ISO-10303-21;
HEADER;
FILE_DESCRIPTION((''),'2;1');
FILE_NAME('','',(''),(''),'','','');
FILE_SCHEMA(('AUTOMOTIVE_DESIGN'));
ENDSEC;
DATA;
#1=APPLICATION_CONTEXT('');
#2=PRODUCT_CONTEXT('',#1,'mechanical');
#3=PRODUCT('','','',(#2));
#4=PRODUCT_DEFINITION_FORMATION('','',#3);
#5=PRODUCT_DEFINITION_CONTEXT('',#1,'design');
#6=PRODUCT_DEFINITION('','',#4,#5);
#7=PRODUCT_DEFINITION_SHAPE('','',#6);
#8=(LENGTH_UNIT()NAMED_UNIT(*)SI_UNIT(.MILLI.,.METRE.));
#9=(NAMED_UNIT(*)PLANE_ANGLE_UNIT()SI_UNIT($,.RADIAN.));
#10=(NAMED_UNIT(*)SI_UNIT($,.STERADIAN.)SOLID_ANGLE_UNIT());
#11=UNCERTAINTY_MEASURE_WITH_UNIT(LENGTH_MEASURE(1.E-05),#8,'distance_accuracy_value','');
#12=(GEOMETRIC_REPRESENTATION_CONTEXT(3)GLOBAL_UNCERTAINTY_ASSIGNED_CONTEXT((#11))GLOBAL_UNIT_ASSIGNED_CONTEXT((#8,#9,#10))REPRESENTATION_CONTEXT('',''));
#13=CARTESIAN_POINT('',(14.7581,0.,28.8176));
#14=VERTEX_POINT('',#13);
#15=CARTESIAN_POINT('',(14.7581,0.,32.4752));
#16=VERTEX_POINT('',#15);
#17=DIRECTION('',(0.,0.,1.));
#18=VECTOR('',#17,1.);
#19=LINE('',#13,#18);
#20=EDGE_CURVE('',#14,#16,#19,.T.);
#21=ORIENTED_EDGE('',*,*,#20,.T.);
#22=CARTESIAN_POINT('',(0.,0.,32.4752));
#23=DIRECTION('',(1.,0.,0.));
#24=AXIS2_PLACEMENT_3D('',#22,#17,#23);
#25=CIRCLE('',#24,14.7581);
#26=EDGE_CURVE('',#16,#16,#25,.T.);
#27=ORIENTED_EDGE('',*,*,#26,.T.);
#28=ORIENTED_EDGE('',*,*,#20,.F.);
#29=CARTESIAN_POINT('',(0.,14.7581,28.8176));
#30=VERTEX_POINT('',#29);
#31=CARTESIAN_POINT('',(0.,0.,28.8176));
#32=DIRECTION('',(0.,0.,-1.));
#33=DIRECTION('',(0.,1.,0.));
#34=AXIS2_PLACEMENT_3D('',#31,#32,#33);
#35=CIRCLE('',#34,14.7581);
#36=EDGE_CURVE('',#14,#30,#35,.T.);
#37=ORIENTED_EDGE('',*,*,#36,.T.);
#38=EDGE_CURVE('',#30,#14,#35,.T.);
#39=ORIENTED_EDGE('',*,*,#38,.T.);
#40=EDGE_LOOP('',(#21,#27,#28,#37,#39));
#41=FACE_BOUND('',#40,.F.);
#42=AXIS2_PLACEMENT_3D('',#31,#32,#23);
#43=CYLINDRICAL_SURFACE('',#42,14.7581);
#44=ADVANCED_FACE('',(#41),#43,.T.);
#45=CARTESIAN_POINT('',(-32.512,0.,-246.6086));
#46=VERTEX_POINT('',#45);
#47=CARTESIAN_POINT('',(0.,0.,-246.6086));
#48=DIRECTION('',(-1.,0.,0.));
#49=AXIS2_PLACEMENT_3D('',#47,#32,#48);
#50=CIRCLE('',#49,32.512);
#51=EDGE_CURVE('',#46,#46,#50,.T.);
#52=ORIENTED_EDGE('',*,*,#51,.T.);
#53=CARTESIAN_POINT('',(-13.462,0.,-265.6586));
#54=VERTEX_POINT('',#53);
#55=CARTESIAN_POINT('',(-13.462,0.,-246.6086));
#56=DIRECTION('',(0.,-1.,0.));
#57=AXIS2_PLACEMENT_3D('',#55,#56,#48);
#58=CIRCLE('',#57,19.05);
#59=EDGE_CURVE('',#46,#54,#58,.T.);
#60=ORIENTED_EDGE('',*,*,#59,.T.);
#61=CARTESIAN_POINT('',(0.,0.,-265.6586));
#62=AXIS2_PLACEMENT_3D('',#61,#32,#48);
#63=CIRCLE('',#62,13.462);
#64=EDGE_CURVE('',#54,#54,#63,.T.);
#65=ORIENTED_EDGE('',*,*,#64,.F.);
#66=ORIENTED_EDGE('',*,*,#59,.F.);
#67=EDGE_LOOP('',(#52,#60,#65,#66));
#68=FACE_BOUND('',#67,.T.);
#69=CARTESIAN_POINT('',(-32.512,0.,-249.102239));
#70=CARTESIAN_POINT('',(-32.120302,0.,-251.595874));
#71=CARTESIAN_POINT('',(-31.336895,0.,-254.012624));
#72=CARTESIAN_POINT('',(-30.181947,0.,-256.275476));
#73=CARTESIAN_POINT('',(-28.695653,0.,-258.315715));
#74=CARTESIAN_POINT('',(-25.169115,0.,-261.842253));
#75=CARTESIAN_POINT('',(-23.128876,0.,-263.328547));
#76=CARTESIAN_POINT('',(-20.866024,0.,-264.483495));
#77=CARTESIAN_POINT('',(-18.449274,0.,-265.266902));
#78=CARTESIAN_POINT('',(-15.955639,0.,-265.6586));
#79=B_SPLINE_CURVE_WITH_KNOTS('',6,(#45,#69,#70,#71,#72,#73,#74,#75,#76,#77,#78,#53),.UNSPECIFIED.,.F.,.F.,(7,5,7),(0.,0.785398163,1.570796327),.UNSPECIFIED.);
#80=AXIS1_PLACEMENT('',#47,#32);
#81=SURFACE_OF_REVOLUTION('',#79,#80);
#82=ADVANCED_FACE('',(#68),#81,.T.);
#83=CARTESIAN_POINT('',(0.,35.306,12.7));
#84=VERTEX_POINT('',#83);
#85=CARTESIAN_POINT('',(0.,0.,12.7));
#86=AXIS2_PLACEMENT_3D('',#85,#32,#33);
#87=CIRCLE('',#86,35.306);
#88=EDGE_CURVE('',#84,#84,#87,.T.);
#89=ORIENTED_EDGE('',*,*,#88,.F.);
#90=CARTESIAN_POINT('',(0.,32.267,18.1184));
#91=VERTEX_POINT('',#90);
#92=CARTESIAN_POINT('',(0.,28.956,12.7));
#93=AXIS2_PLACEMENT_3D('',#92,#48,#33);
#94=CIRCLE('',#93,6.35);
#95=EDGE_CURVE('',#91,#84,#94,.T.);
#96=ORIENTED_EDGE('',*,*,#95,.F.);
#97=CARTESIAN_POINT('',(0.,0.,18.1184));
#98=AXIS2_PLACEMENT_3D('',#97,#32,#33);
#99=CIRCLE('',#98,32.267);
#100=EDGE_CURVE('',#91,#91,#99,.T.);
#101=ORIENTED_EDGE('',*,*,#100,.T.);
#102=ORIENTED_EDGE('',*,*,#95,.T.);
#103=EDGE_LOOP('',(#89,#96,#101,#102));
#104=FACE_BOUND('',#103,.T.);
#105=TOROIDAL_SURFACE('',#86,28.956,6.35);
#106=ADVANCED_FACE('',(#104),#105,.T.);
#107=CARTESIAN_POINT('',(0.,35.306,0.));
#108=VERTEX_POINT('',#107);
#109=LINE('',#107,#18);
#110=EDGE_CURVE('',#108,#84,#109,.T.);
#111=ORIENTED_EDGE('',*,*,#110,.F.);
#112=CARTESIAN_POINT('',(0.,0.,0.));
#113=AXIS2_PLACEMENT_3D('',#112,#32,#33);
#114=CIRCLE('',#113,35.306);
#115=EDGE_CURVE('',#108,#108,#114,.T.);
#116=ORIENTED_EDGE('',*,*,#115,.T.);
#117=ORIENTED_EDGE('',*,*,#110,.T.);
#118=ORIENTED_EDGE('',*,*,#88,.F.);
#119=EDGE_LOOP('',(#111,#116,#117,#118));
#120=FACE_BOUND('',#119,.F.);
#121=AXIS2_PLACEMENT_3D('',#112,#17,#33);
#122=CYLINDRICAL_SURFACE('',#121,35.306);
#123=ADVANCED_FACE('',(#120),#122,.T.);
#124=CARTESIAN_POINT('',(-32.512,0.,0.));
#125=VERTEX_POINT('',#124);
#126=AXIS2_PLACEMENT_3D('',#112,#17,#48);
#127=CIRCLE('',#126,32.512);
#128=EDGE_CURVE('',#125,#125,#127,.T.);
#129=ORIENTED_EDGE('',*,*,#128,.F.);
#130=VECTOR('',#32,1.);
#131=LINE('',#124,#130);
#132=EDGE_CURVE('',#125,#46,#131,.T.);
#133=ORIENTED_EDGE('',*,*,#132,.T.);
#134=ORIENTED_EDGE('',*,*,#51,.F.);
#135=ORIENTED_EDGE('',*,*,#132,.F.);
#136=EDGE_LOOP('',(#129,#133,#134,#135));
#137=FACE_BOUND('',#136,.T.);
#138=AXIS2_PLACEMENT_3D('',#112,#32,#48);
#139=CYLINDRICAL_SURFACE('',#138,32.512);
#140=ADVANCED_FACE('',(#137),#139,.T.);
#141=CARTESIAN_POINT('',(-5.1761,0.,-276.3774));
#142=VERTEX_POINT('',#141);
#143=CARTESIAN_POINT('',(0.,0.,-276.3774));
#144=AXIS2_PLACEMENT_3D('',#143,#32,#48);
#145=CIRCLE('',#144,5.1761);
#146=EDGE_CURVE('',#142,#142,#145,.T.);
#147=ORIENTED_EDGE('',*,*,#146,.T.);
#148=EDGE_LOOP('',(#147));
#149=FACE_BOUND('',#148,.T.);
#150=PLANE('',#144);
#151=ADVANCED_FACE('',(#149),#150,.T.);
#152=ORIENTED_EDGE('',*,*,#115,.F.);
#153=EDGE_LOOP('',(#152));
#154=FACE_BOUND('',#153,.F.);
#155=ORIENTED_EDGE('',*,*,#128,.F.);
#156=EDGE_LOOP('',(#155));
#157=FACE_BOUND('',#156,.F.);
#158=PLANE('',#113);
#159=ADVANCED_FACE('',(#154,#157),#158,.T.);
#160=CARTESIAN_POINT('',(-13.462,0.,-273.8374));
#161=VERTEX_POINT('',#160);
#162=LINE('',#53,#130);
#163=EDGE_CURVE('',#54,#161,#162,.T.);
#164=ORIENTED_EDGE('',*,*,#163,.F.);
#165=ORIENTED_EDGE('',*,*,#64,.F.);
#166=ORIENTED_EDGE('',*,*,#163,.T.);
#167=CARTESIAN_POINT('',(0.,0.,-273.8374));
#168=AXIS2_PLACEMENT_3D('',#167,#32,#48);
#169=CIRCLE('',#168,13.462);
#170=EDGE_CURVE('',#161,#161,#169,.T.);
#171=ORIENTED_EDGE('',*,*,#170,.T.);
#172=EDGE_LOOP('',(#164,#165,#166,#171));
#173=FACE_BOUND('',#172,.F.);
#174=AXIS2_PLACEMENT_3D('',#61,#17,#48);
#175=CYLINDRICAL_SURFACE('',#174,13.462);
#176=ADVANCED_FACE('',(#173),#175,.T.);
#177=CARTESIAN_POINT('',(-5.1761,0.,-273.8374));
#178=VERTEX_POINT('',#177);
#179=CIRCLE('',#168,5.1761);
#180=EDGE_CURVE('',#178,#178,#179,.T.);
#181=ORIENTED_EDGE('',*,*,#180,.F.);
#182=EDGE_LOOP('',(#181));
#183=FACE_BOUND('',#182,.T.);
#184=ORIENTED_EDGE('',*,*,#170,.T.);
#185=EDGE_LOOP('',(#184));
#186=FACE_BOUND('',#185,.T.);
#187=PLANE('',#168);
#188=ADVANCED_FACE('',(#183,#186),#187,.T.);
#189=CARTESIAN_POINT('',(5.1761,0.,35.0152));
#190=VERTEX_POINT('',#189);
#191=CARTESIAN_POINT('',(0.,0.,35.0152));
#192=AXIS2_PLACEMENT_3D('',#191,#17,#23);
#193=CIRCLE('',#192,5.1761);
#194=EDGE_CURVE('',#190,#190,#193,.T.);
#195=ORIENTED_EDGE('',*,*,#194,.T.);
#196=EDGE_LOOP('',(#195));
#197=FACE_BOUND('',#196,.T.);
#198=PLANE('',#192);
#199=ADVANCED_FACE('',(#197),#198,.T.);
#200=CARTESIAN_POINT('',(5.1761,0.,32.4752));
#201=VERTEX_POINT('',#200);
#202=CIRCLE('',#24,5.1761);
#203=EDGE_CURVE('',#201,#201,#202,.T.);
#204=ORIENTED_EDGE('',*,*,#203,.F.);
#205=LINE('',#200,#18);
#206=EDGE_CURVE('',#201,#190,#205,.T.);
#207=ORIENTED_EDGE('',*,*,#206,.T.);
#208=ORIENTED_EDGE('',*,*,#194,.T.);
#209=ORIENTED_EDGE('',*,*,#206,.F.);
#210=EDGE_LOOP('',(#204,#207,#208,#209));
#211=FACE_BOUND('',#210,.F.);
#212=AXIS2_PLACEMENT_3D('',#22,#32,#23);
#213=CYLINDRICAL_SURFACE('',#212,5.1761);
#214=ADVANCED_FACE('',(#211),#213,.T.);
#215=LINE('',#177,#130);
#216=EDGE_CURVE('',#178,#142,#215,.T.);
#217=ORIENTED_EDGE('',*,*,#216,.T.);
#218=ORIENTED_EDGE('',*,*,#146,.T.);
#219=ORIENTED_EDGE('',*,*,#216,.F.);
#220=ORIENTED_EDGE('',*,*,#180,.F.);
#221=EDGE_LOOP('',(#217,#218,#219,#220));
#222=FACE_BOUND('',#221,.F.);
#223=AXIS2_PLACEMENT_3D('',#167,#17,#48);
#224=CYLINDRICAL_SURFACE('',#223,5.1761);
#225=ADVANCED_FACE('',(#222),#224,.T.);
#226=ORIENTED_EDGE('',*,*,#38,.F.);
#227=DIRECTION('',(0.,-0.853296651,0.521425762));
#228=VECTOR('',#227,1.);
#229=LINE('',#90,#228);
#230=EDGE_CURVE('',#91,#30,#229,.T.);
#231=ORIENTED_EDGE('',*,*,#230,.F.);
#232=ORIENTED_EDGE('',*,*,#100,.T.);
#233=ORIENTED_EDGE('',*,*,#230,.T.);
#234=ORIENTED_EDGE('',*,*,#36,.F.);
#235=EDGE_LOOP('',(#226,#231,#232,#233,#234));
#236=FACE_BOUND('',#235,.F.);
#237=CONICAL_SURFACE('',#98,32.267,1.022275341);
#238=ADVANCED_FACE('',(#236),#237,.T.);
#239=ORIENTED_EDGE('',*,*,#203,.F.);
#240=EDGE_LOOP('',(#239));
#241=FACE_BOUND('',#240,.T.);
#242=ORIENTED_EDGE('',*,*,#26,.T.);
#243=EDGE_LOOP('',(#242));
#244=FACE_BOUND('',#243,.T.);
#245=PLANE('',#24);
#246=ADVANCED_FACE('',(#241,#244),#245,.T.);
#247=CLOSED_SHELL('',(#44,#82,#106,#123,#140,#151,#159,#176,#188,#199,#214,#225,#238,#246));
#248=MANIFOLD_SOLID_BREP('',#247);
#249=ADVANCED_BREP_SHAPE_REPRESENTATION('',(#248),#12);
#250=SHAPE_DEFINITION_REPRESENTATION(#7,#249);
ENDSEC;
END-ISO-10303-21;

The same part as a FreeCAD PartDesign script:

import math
import FreeCAD as App
import Part
import Sketcher
Q = App.Units.Quantity


def edges_at(feature, points):
    """Names of the edges that pass closest to the given points."""
    edges = feature.Shape.Edges
    near = lambda p: min(range(len(edges)), key=lambda i: edges[i].distToShape(Part.Vertex(*p))[0])
    return sorted({f"Edge{near(p) + 1}" for p in points})

doc = App.newDocument("Part")
body = doc.addObject("PartDesign::Body", "Body")

sketch1 = body.newObject("Sketcher::SketchObject", "Sketch")
sketch1.AttachmentSupport = (doc.getObject("XZ_Plane"), [""])
sketch1.MapMode = "FlatFace"
sketch1.addGeometry([
    Part.LineSegment(App.Vector(-33, 0, 0), App.Vector(0, 0, 0)),
    Part.LineSegment(App.Vector(0, 0, 0), App.Vector(0, -266, 0)),
    Part.LineSegment(App.Vector(0, -266, 0), App.Vector(-33, -266, 0)),
    Part.LineSegment(App.Vector(-33, -266, 0), App.Vector(-33, 0, 0)),
], False)
sketch1.addConstraint([
    Sketcher.Constraint("Coincident", 0, 2, 1, 1),
    Sketcher.Constraint("Coincident", 1, 2, 2, 1),
    Sketcher.Constraint("Coincident", 2, 2, 3, 1),
    Sketcher.Constraint("Coincident", 3, 2, 0, 1),
    Sketcher.Constraint("Horizontal", 0),
    Sketcher.Constraint("Vertical", 1),
    Sketcher.Constraint("Horizontal", 2),
    Sketcher.Constraint("Vertical", 3),
    Sketcher.Constraint("Coincident", 0, 2, -1, 1),
    Sketcher.Constraint("DistanceX", 0, 1, 0, 2, Q("1.28 in")),
    Sketcher.Constraint("DistanceY", 1, 2, 1, 1, Q("10.459 in")),
])
revolution = body.newObject("PartDesign::Revolution", "Revolution")
revolution.Profile = sketch1
revolution.ReferenceAxis = (sketch1, ["V_Axis"])
revolution.Angle = 360
doc.recompute()

fillet = body.newObject("PartDesign::Fillet", "Fillet")
fillet.Base = (revolution, edges_at(revolution, [(32.512, 0, -265.659)]))
fillet.Radius = Q("0.75 in")

sketch2 = body.newObject("Sketcher::SketchObject", "Sketch001")
sketch2.AttachmentSupport = (doc.getObject("YZ_Plane"), [""])
sketch2.MapMode = "FlatFace"
sketch2.addGeometry([
    Part.LineSegment(App.Vector(0, 19, 0), App.Vector(0, 0, 0)),
    Part.LineSegment(App.Vector(0, 0, 0), App.Vector(35, 0, 0)),
    Part.LineSegment(App.Vector(35, 0, 0), App.Vector(35, 19, 0)),
    Part.LineSegment(App.Vector(35, 19, 0), App.Vector(0, 19, 0)),
], False)
sketch2.addConstraint([
    Sketcher.Constraint("Coincident", 0, 2, 1, 1),
    Sketcher.Constraint("Coincident", 1, 2, 2, 1),
    Sketcher.Constraint("Coincident", 2, 2, 3, 1),
    Sketcher.Constraint("Coincident", 3, 2, 0, 1),
    Sketcher.Constraint("Vertical", 0),
    Sketcher.Constraint("Horizontal", 1),
    Sketcher.Constraint("Vertical", 2),
    Sketcher.Constraint("Horizontal", 3),
    Sketcher.Constraint("Coincident", 0, 2, -1, 1),
    Sketcher.Constraint("DistanceX", 1, 1, 1, 2, Q("1.39 in")),
    Sketcher.Constraint("DistanceY", 0, 2, 0, 1, Q("0.75 in")),
])
revolution2 = body.newObject("PartDesign::Revolution", "Revolution001")
revolution2.Profile = sketch2
revolution2.ReferenceAxis = (sketch2, ["V_Axis"])
revolution2.Angle = 360
doc.recompute()

fillet2 = body.newObject("PartDesign::Fillet", "Fillet001")
fillet2.Base = (revolution2, edges_at(revolution2, [(0, -35.306, 19.05)]))
fillet2.Radius = Q("0.25 in")

sketch3 = body.newObject("Sketcher::SketchObject", "Sketch002")
sketch3.AttachmentSupport = (doc.getObject("YZ_Plane"), [""])
sketch3.MapMode = "FlatFace"
sketch3.addGeometry([
    Part.ArcOfCircle(Part.Circle(App.Vector(29, 12.7, 0), App.Vector(0, 0, 1), 6.3), math.radians(59), math.radians(90)),
    Part.LineSegment(App.Vector(32.3, 18.1, 0), App.Vector(14.8, 28.8, 0)),
    Part.LineSegment(App.Vector(14.8, 28.8, 0), App.Vector(0, 28.8, 0)),
    Part.LineSegment(App.Vector(0, 28.8, 0), App.Vector(0, 19.1, 0)),
    Part.LineSegment(App.Vector(0, 19.1, 0), App.Vector(29, 19.1, 0)),
], False)
sketch3.addConstraint([
    Sketcher.Constraint("Tangent", 0, 1, 1, 1),
    Sketcher.Constraint("Coincident", 1, 2, 2, 1),
    Sketcher.Constraint("Coincident", 2, 2, 3, 1),
    Sketcher.Constraint("Coincident", 3, 2, 4, 1),
    Sketcher.Constraint("Tangent", 4, 2, 0, 2),
    Sketcher.Constraint("Horizontal", 2),
    Sketcher.Constraint("Vertical", 3),
    Sketcher.Constraint("Horizontal", 4),
    Sketcher.Constraint("PointOnObject", 2, 2, -2),
    Sketcher.Constraint("Radius", 0, Q("0.25 in")),
    Sketcher.Constraint("DistanceX", 4, 1, 4, 2, Q("1.14 in")),
    Sketcher.Constraint("DistanceY", -1, 1, 0, 3, Q("0.5 in")),
    Sketcher.Constraint("DistanceX", 2, 2, 2, 1, 14.758),
    Sketcher.Constraint("DistanceY", 3, 2, 3, 1, 9.7676),
])
revolution3 = body.newObject("PartDesign::Revolution", "Revolution002")
revolution3.Profile = sketch3
revolution3.ReferenceAxis = (sketch3, ["V_Axis"])
revolution3.Angle = 360

sketch4 = body.newObject("Sketcher::SketchObject", "Sketch003")
sketch4.AttachmentSupport = (doc.getObject("XY_Plane"), [""])
sketch4.MapMode = "FlatFace"
sketch4.AttachmentOffset = App.Placement(App.Vector(0, 0, 28.8176), App.Rotation())
sketch4.addGeometry(Part.Circle(App.Vector(0, 0, 0), App.Vector(0, 0, 1), 15), False)
sketch4.addConstraint([
    Sketcher.Constraint("Coincident", 0, 3, -1, 1),
    Sketcher.Constraint("Diameter", 0, 29.5162),
])
pad1 = body.newObject("PartDesign::Pad", "Pad")
pad1.Profile = sketch4
pad1.Length = Q("0.144 in")

sketch5 = body.newObject("Sketcher::SketchObject", "Sketch004")
sketch5.AttachmentSupport = (doc.getObject("XY_Plane"), [""])
sketch5.MapMode = "FlatFace"
sketch5.AttachmentOffset = App.Placement(App.Vector(0, 0, -10.459 * 25.4), App.Rotation())
sketch5.addGeometry(Part.Circle(App.Vector(0, 0, 0), App.Vector(0, 0, 1), 13), False)
sketch5.addConstraint([
    Sketcher.Constraint("Coincident", 0, 3, -1, 1),
    Sketcher.Constraint("Diameter", 0, Q("1.06 in")),
])
pad2 = body.newObject("PartDesign::Pad", "Pad001")
pad2.Profile = sketch5
pad2.Length = Q("0.322 in")
pad2.Reversed = True

sketch6 = body.newObject("Sketcher::SketchObject", "Sketch005")
sketch6.AttachmentSupport = (doc.getObject("XY_Plane"), [""])
sketch6.MapMode = "FlatFace"
sketch6.AttachmentOffset = App.Placement(App.Vector(0, 0, 32.4752), App.Rotation())
sketch6.addGeometry(Part.Circle(App.Vector(0, 0, 0), App.Vector(0, 0, 1), 5), False)
sketch6.addConstraint([
    Sketcher.Constraint("Coincident", 0, 3, -1, 1),
    Sketcher.Constraint("Diameter", 0, 10.3522),
])
pad3 = body.newObject("PartDesign::Pad", "Pad002")
pad3.Profile = sketch6
pad3.Length = Q("0.1 in")

sketch7 = body.newObject("Sketcher::SketchObject", "Sketch006")
sketch7.AttachmentSupport = (doc.getObject("XY_Plane"), [""])
sketch7.MapMode = "FlatFace"
sketch7.AttachmentOffset = App.Placement(App.Vector(0, 0, -10.781 * 25.4), App.Rotation())
sketch7.addGeometry(Part.Circle(App.Vector(0, 0, 0), App.Vector(0, 0, 1), 5), False)
sketch7.addConstraint([
    Sketcher.Constraint("Coincident", 0, 3, -1, 1),
    Sketcher.Constraint("Diameter", 0, 10.3522),
])
pad4 = body.newObject("PartDesign::Pad", "Pad003")
pad4.Profile = sketch7
pad4.Length = Q("0.1 in")
pad4.Reversed = True

doc.recompute()
